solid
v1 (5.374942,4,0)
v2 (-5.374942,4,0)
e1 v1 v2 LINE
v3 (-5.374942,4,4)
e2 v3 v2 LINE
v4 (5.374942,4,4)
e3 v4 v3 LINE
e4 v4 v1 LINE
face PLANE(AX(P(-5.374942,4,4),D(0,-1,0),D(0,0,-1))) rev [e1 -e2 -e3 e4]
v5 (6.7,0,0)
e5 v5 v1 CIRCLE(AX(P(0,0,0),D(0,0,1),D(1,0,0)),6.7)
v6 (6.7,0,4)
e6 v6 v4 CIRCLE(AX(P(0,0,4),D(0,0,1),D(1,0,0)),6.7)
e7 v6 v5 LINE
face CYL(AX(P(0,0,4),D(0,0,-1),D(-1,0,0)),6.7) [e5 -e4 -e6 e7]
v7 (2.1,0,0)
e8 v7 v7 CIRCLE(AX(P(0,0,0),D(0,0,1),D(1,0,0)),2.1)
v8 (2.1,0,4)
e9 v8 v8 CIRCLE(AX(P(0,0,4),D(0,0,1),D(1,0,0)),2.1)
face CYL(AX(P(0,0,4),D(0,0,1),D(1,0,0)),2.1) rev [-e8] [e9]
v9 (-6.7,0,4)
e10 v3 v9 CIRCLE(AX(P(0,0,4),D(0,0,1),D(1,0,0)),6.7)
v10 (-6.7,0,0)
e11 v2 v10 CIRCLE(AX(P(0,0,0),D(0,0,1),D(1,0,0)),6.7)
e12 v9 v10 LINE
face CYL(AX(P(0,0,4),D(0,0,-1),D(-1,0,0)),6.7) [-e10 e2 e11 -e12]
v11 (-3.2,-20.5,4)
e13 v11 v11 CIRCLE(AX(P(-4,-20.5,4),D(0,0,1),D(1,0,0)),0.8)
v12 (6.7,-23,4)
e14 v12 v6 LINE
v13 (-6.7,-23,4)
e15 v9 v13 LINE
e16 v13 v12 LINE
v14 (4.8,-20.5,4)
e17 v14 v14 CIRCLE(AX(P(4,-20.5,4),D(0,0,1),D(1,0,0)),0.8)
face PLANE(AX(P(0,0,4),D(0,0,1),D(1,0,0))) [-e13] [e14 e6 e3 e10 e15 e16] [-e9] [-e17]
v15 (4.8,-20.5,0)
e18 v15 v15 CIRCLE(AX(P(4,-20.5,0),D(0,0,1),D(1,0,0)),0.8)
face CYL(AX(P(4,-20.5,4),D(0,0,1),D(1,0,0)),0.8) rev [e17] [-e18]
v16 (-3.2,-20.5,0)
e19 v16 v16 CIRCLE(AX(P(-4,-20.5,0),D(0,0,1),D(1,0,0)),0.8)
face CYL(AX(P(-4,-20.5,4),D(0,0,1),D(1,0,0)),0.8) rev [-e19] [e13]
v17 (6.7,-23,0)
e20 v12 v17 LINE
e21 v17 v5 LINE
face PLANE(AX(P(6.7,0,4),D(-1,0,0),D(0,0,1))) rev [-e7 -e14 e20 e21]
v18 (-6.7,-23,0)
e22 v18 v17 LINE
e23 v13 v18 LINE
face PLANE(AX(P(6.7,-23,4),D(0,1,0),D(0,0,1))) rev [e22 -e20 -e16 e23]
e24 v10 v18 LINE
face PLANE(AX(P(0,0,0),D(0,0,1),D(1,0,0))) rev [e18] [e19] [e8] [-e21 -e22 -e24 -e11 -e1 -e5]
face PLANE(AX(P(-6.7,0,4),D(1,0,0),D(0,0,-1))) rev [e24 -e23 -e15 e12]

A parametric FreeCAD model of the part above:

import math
import FreeCAD as App
import Part
import Sketcher

V = App.Vector

doc = App.newDocument("Part")
body = doc.addObject("PartDesign::Body", "Body")

# Sketch on XY plane
sketch1 = body.newObject("Sketcher::SketchObject", "Sketch")
sketch1.AttachmentSupport = (doc.getObject("XY_Plane"), [""])
sketch1.MapMode = "FlatFace"
sketch1.addGeometry([
    Part.LineSegment(V(-6.7, 0, 0), V(-6.7, -23, 0)),  # 0
    Part.LineSegment(V(-6.7, -23, 0), V(6.7, -23, 0)),  # 1
    Part.LineSegment(V(6.7, -23, 0), V(6.7, 0, 0)),  # 2
    Part.ArcOfCircle(Part.Circle(V(0, 0, 0), V(0, 0, 1), 6.7), math.radians(0), math.radians(36.656405)),  # 3
    Part.LineSegment(V(5.374942, 4, 0), V(-5.374942, 4, 0)),  # 4
    Part.ArcOfCircle(Part.Circle(V(0, 0, 0), V(0, 0, 1), 6.7), math.radians(143.343595), math.radians(180)),  # 5
], False)
sketch1.addConstraint([
    Sketcher.Constraint("Coincident", 0, 2, 1, 1),
    Sketcher.Constraint("Coincident", 1, 2, 2, 1),
    Sketcher.Constraint("Tangent", 2, 2, 3, 1),
    Sketcher.Constraint("Coincident", 3, 2, 4, 1),
    Sketcher.Constraint("Coincident", 4, 2, 5, 1),
    Sketcher.Constraint("Tangent", 5, 2, 0, 1),
    Sketcher.Constraint("Vertical", 0),
    Sketcher.Constraint("Horizontal", 1),
    Sketcher.Constraint("Vertical", 2),
    Sketcher.Constraint("Horizontal", 4),
    Sketcher.Constraint("Coincident", 3, 3, -1, 1),
    Sketcher.Constraint("Coincident", 5, 3, -1, 1),
    Sketcher.Constraint("Equal", 3, 5),
    Sketcher.Constraint("Radius", 3, 6.7),
    Sketcher.Constraint("DistanceY", 0, 2, 0, 1, 23.0),
    Sketcher.Constraint("DistanceY", -1, 1, 3, 2, 4.0),
])
pad1 = body.newObject("PartDesign::Pad", "Pad")
pad1.Profile = sketch1
pad1.Length = 4

# Sketch on XY plane
sketch2 = body.newObject("Sketcher::SketchObject", "Sketch001")
sketch2.AttachmentSupport = (doc.getObject("XY_Plane"), [""])
sketch2.MapMode = "FlatFace"
sketch2.AttachmentOffset = App.Placement(V(0, 0, 4), App.Rotation())
sketch2.addGeometry([
    Part.Circle(V(-4, -20.5, 0), V(0, 0, 1), 0.8),
    Part.Circle(V(4, -20.5, 0), V(0, 0, 1), 0.8),
], False)
sketch2.addConstraint([
    Sketcher.Constraint("Equal", 0, 1),
    Sketcher.Constraint("Symmetric", 0, 3, 1, 3, -2),
    Sketcher.Constraint("Diameter", 0, 1.6),
    Sketcher.Constraint("DistanceX", 0, 3, -1, 1, 4.0),
    Sketcher.Constraint("DistanceY", 0, 3, -1, 1, 20.5),
])
doc.recompute()
hole = body.newObject("PartDesign::Hole", "Hole")
hole.Profile = sketch2
hole.ThreadType = "None"
hole.Diameter = 1.6
hole.DepthType = "ThroughAll"

# Sketch on XY plane
sketch3 = body.newObject("Sketcher::SketchObject", "Sketch002")
sketch3.AttachmentSupport = (doc.getObject("XY_Plane"), [""])
sketch3.MapMode = "FlatFace"
sketch3.AttachmentOffset = App.Placement(V(0, 0, 4), App.Rotation())
sketch3.addGeometry(Part.Circle(V(0, 0, 0), V(0, 0, 1), 2.1), False)
sketch3.addConstraint([
    Sketcher.Constraint("Coincident", 0, 3, -1, 1),
    Sketcher.Constraint("Diameter", 0, 4.2),
])
doc.recompute()
hole2 = body.newObject("PartDesign::Hole", "Hole001")
hole2.Profile = sketch3
hole2.ThreadType = "None"
hole2.Diameter = 4.2
hole2.DepthType = "ThroughAll"

doc.recompute()
